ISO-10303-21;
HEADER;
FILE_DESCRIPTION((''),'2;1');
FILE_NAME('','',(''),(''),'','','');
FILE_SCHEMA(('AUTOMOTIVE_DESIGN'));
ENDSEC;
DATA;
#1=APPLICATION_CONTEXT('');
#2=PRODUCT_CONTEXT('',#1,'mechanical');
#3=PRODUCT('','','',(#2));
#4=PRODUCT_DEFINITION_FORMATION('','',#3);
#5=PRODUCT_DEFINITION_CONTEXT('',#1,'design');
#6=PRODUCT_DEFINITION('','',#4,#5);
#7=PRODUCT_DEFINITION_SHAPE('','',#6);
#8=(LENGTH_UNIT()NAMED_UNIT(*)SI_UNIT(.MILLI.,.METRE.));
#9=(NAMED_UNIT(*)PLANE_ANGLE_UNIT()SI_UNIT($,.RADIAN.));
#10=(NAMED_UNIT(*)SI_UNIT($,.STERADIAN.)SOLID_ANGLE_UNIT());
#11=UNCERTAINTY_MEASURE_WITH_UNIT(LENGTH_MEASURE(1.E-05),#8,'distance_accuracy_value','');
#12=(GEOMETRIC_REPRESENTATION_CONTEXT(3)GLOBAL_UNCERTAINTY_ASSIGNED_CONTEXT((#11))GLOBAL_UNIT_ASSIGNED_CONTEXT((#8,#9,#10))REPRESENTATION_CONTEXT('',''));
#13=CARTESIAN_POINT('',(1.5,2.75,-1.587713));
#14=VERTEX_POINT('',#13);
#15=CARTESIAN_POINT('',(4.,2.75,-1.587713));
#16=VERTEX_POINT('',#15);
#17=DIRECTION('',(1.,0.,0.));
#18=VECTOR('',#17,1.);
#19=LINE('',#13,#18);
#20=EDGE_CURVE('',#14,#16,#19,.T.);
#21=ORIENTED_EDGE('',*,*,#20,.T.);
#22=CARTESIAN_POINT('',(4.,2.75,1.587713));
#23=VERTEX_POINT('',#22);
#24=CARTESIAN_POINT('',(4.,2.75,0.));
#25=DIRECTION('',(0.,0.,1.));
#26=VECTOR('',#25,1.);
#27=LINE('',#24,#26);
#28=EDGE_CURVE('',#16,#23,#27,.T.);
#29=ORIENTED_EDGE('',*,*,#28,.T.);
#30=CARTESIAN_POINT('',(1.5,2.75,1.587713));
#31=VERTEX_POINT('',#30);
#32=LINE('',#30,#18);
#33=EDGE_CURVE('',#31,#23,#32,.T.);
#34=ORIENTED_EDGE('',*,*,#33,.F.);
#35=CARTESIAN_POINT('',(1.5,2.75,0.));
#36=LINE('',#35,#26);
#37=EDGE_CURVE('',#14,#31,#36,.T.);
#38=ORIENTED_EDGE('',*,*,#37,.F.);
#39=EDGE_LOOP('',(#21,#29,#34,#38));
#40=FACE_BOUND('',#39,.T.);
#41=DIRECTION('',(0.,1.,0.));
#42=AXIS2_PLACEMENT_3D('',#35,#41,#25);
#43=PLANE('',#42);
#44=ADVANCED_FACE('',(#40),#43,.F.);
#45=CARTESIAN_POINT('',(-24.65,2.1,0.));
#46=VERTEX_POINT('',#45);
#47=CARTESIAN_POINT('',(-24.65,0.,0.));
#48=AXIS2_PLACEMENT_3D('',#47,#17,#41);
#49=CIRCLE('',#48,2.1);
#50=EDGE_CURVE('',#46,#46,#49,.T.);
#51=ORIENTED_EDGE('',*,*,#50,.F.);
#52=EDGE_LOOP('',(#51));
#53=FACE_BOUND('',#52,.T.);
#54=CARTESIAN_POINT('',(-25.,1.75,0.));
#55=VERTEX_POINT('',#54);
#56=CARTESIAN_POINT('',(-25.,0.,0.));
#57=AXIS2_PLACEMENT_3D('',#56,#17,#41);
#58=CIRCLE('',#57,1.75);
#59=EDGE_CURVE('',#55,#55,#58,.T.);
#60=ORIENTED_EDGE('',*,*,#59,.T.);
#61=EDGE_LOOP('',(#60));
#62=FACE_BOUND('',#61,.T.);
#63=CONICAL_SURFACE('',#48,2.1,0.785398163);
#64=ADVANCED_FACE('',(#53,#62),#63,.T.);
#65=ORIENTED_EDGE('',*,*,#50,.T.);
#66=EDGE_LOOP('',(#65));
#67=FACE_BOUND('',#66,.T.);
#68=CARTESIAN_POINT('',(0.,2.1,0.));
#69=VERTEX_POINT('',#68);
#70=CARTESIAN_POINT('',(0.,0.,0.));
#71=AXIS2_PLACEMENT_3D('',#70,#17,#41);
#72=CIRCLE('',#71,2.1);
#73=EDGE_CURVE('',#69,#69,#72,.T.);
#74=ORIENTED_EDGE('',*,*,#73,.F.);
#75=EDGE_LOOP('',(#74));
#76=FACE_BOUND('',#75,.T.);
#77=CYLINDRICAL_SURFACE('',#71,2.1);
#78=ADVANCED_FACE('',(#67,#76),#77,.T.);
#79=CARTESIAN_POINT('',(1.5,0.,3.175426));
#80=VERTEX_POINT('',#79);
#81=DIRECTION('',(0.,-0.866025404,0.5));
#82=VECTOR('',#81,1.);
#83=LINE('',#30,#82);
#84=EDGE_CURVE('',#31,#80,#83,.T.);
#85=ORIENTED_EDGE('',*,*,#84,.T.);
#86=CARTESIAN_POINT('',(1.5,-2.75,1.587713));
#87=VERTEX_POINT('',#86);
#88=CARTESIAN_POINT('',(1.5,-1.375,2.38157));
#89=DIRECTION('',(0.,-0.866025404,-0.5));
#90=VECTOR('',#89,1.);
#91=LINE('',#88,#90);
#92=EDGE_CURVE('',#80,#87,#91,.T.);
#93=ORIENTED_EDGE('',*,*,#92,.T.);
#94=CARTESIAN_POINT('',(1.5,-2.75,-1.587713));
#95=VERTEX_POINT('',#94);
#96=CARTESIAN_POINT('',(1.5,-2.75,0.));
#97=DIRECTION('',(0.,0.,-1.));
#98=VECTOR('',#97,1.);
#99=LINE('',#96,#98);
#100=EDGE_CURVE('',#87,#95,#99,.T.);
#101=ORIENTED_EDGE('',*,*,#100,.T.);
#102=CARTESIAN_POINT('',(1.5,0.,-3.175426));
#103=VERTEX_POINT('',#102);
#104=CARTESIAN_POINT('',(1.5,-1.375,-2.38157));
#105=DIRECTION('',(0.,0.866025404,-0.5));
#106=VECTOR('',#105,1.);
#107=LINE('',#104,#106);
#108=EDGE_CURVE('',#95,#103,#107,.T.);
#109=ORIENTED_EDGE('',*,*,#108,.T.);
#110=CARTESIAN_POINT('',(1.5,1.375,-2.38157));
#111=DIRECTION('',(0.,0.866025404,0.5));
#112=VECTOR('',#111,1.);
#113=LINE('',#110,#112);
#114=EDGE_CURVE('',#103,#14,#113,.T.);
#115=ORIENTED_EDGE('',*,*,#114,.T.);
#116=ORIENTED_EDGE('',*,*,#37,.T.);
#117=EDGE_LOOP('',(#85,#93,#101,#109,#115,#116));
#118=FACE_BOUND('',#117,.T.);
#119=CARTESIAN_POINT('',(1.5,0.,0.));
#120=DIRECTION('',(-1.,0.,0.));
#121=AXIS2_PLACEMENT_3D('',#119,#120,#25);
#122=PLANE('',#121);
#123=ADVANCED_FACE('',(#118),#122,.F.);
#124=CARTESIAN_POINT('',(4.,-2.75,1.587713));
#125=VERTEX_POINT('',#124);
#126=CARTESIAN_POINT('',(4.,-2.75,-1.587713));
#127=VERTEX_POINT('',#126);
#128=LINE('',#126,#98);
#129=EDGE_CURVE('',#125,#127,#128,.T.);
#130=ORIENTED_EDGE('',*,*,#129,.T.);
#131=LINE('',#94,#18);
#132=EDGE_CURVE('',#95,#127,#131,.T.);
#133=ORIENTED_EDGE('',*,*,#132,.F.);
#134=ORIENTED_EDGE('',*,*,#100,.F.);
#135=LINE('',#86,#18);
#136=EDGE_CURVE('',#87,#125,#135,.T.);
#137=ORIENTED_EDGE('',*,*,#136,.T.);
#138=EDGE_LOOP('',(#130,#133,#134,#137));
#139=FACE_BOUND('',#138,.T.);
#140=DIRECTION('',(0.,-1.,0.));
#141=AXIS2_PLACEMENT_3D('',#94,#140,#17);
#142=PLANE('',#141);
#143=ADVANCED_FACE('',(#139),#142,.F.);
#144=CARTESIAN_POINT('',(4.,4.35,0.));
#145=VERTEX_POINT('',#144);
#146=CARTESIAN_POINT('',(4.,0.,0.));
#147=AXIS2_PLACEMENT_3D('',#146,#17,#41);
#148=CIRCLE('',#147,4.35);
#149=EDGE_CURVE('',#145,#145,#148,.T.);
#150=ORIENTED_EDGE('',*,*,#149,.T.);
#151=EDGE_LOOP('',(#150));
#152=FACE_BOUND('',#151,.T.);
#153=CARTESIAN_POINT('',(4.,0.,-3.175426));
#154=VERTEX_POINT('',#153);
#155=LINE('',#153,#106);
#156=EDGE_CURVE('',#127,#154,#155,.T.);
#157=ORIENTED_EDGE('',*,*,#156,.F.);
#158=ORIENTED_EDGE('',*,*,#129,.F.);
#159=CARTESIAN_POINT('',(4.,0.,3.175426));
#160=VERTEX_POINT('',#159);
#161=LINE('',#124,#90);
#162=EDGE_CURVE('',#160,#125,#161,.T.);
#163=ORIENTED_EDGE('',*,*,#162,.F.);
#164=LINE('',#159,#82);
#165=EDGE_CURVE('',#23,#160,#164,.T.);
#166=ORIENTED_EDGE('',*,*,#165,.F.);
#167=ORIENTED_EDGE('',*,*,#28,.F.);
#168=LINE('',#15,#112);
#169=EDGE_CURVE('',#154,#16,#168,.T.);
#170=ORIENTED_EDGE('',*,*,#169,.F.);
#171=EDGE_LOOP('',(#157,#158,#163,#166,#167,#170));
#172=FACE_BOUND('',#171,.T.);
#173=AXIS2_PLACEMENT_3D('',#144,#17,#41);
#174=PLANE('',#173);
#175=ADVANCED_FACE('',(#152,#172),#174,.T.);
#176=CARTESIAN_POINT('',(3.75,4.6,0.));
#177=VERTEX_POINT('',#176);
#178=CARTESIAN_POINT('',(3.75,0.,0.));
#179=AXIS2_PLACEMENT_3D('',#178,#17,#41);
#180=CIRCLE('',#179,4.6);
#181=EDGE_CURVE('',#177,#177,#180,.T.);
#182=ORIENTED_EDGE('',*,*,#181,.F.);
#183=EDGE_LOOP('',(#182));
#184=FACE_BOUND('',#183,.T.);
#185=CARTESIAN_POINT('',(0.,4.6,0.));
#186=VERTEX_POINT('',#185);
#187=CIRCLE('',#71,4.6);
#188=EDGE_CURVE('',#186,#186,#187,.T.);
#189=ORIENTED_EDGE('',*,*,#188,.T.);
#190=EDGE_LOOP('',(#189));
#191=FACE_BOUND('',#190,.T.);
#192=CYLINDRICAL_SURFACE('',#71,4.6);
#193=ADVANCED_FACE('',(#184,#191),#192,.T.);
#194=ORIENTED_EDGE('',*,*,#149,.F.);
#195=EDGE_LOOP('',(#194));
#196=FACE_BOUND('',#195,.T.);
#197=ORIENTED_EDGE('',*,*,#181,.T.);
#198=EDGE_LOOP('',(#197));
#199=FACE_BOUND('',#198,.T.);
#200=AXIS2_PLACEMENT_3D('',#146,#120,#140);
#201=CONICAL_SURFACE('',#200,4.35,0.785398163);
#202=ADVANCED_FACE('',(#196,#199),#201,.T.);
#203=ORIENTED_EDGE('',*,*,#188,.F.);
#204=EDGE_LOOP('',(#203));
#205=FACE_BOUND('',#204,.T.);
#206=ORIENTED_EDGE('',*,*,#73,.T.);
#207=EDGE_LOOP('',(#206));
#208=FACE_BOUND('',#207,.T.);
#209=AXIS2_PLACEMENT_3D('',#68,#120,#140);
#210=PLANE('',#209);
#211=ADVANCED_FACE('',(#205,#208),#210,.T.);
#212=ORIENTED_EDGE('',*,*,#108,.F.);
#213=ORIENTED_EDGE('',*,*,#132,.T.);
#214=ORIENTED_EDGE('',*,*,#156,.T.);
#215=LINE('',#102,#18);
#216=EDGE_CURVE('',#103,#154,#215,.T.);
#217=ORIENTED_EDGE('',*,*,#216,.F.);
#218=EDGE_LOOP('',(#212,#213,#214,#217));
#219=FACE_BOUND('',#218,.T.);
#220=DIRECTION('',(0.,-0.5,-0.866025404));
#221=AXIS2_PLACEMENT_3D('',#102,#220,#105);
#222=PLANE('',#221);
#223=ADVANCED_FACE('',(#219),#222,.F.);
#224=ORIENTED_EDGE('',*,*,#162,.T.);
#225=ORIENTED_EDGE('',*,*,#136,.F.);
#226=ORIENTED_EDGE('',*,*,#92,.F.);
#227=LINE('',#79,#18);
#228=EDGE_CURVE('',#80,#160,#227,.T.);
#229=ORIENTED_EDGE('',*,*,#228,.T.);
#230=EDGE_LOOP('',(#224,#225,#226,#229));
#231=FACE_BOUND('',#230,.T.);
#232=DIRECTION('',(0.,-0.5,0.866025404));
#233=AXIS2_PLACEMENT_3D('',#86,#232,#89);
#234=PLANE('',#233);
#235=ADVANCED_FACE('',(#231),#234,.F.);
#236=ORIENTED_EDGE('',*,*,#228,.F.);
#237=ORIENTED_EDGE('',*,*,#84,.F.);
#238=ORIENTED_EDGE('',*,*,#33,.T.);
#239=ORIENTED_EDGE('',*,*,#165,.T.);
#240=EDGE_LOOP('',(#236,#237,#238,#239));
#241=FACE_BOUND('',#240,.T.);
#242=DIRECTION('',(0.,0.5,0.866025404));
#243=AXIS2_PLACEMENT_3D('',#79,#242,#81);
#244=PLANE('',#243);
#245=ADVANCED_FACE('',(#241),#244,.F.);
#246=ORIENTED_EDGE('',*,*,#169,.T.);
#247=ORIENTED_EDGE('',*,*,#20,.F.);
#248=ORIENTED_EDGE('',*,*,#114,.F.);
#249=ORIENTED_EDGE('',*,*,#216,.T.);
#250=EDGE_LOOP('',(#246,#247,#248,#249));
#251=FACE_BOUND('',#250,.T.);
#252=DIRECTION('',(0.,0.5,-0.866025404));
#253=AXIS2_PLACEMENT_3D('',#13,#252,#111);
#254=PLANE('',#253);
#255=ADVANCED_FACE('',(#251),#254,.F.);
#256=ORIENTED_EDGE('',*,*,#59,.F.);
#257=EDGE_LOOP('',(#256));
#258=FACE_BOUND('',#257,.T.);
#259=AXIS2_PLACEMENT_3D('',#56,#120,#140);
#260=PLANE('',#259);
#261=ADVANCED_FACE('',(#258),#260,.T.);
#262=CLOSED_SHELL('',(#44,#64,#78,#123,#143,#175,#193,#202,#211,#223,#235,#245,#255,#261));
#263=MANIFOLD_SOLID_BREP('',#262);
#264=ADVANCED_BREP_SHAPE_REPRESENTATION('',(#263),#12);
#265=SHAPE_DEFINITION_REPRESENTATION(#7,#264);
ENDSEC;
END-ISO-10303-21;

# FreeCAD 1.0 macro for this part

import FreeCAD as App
import Part
import Sketcher

V = App.Vector
Q = App.Units.Quantity


def add_polygon(sketch, points):
    """Adds a closed chain of lines whose ends are joined by coincident constraints."""
    first, n = sketch.GeometryCount, len(points)
    for a, b in zip(points, points[1:] + points[:1]):
        sketch.addGeometry(Part.LineSegment(App.Vector(*a, 0), App.Vector(*b, 0)), False)
    for i in range(n):
        sketch.addConstraint(Sketcher.Constraint("Coincident", first + i, 2, first + (i + 1) % n, 1))

doc = App.newDocument("Part")
body = doc.addObject("PartDesign::Body", "Body")

# Sketch on XY plane
sketch1 = body.newObject("Sketcher::SketchObject", "Sketch")
sketch1.AttachmentSupport = (doc.getObject("XY_Plane"), [""])
sketch1.MapMode = "FlatFace"
add_polygon(sketch1, [(-25, 0), (4, 0), (4, 4.35), (3.75, 4.6), (0, 4.6), (0, 2.1), (-24.65, 2.1), (-25, 1.75)])  # lines 0-7
sketch1.addConstraint([
    Sketcher.Constraint("Horizontal", 0),
    Sketcher.Constraint("Vertical", 1),
    Sketcher.Constraint("Horizontal", 3),
    Sketcher.Constraint("Vertical", 4),
    Sketcher.Constraint("Horizontal", 5),
    Sketcher.Constraint("Vertical", 7),
    Sketcher.Constraint("PointOnObject", 0, 2, -1),
    Sketcher.Constraint("PointOnObject", 3, 2, -2),
    Sketcher.Constraint("Perpendicular", 2, 6),
    Sketcher.Constraint("DistanceX", 0, 1, 0, 2, 29.0),
    Sketcher.Constraint("Angle", 2, Q("135 deg")),
    Sketcher.Constraint("DistanceY", 4, 2, 4, 1, 2.5),
    Sketcher.Constraint("DistanceX", -1, 1, 0, 2, 4.0),
    Sketcher.Constraint("DistanceX", 3, 2, 3, 1, 3.75),
    Sketcher.Constraint("DistanceX", 5, 2, 5, 1, 24.65),
    Sketcher.Constraint("DistanceY", 1, 1, 1, 2, 4.35),
])
revolution = body.newObject("PartDesign::Revolution", "Revolution")
revolution.Profile = sketch1
revolution.ReferenceAxis = (sketch1, ["H_Axis"])
revolution.Angle = 360

# Sketch on YZ plane
sketch2 = body.newObject("Sketcher::SketchObject", "Sketch001")
sketch2.AttachmentSupport = (doc.getObject("YZ_Plane"), [""])
sketch2.MapMode = "FlatFace"
sketch2.AttachmentOffset = App.Placement(V(0, 0, 4), App.Rotation())
add_polygon(sketch2, [(2.8, 1.6), (1.4, 2.4), (0, 3.2), (-1.4, 2.4), (-2.8, 1.6), (-2.8, -1.6), (-1.4, -2.4), (0, -3.2), (1.4, -2.4), (2.8, -1.6)])  # lines 0-9
sketch2.addConstraint([
    Sketcher.Constraint("Vertical", 4),
    Sketcher.Constraint("Vertical", 9),
    Sketcher.Constraint("Symmetric", 0, 2, 5, 2, -1, 1),
    Sketcher.Constraint("Symmetric", 1, 2, 6, 2, -1, 1),
    Sketcher.Constraint("Symmetric", 2, 2, 7, 2, -1, 1),
    Sketcher.Constraint("Symmetric", 3, 2, 8, 2, -1, 1),
    Sketcher.Constraint("Symmetric", 0, 2, 2, 2, -2),
    Sketcher.Constraint("PointOnObject", 1, 2, -2),
    Sketcher.Constraint("Parallel", 0, 1),
    Sketcher.Constraint("Parallel", 2, 3),
    Sketcher.Constraint("Parallel", 1, 5),
    Sketcher.Constraint("Equal", 0, 1),
    Sketcher.Constraint("Angle", 0, Q("150 deg")),
    Sketcher.Constraint("DistanceX", 4, 2, 8, 2, 5.5),
    Sketcher.Constraint("DistanceY", 4, 2, 4, 1, 3.175426),
])
pocket1 = body.newObject("PartDesign::Pocket", "Pocket")
pocket1.Profile = sketch2
pocket1.Length = 2.5

doc.recompute()
